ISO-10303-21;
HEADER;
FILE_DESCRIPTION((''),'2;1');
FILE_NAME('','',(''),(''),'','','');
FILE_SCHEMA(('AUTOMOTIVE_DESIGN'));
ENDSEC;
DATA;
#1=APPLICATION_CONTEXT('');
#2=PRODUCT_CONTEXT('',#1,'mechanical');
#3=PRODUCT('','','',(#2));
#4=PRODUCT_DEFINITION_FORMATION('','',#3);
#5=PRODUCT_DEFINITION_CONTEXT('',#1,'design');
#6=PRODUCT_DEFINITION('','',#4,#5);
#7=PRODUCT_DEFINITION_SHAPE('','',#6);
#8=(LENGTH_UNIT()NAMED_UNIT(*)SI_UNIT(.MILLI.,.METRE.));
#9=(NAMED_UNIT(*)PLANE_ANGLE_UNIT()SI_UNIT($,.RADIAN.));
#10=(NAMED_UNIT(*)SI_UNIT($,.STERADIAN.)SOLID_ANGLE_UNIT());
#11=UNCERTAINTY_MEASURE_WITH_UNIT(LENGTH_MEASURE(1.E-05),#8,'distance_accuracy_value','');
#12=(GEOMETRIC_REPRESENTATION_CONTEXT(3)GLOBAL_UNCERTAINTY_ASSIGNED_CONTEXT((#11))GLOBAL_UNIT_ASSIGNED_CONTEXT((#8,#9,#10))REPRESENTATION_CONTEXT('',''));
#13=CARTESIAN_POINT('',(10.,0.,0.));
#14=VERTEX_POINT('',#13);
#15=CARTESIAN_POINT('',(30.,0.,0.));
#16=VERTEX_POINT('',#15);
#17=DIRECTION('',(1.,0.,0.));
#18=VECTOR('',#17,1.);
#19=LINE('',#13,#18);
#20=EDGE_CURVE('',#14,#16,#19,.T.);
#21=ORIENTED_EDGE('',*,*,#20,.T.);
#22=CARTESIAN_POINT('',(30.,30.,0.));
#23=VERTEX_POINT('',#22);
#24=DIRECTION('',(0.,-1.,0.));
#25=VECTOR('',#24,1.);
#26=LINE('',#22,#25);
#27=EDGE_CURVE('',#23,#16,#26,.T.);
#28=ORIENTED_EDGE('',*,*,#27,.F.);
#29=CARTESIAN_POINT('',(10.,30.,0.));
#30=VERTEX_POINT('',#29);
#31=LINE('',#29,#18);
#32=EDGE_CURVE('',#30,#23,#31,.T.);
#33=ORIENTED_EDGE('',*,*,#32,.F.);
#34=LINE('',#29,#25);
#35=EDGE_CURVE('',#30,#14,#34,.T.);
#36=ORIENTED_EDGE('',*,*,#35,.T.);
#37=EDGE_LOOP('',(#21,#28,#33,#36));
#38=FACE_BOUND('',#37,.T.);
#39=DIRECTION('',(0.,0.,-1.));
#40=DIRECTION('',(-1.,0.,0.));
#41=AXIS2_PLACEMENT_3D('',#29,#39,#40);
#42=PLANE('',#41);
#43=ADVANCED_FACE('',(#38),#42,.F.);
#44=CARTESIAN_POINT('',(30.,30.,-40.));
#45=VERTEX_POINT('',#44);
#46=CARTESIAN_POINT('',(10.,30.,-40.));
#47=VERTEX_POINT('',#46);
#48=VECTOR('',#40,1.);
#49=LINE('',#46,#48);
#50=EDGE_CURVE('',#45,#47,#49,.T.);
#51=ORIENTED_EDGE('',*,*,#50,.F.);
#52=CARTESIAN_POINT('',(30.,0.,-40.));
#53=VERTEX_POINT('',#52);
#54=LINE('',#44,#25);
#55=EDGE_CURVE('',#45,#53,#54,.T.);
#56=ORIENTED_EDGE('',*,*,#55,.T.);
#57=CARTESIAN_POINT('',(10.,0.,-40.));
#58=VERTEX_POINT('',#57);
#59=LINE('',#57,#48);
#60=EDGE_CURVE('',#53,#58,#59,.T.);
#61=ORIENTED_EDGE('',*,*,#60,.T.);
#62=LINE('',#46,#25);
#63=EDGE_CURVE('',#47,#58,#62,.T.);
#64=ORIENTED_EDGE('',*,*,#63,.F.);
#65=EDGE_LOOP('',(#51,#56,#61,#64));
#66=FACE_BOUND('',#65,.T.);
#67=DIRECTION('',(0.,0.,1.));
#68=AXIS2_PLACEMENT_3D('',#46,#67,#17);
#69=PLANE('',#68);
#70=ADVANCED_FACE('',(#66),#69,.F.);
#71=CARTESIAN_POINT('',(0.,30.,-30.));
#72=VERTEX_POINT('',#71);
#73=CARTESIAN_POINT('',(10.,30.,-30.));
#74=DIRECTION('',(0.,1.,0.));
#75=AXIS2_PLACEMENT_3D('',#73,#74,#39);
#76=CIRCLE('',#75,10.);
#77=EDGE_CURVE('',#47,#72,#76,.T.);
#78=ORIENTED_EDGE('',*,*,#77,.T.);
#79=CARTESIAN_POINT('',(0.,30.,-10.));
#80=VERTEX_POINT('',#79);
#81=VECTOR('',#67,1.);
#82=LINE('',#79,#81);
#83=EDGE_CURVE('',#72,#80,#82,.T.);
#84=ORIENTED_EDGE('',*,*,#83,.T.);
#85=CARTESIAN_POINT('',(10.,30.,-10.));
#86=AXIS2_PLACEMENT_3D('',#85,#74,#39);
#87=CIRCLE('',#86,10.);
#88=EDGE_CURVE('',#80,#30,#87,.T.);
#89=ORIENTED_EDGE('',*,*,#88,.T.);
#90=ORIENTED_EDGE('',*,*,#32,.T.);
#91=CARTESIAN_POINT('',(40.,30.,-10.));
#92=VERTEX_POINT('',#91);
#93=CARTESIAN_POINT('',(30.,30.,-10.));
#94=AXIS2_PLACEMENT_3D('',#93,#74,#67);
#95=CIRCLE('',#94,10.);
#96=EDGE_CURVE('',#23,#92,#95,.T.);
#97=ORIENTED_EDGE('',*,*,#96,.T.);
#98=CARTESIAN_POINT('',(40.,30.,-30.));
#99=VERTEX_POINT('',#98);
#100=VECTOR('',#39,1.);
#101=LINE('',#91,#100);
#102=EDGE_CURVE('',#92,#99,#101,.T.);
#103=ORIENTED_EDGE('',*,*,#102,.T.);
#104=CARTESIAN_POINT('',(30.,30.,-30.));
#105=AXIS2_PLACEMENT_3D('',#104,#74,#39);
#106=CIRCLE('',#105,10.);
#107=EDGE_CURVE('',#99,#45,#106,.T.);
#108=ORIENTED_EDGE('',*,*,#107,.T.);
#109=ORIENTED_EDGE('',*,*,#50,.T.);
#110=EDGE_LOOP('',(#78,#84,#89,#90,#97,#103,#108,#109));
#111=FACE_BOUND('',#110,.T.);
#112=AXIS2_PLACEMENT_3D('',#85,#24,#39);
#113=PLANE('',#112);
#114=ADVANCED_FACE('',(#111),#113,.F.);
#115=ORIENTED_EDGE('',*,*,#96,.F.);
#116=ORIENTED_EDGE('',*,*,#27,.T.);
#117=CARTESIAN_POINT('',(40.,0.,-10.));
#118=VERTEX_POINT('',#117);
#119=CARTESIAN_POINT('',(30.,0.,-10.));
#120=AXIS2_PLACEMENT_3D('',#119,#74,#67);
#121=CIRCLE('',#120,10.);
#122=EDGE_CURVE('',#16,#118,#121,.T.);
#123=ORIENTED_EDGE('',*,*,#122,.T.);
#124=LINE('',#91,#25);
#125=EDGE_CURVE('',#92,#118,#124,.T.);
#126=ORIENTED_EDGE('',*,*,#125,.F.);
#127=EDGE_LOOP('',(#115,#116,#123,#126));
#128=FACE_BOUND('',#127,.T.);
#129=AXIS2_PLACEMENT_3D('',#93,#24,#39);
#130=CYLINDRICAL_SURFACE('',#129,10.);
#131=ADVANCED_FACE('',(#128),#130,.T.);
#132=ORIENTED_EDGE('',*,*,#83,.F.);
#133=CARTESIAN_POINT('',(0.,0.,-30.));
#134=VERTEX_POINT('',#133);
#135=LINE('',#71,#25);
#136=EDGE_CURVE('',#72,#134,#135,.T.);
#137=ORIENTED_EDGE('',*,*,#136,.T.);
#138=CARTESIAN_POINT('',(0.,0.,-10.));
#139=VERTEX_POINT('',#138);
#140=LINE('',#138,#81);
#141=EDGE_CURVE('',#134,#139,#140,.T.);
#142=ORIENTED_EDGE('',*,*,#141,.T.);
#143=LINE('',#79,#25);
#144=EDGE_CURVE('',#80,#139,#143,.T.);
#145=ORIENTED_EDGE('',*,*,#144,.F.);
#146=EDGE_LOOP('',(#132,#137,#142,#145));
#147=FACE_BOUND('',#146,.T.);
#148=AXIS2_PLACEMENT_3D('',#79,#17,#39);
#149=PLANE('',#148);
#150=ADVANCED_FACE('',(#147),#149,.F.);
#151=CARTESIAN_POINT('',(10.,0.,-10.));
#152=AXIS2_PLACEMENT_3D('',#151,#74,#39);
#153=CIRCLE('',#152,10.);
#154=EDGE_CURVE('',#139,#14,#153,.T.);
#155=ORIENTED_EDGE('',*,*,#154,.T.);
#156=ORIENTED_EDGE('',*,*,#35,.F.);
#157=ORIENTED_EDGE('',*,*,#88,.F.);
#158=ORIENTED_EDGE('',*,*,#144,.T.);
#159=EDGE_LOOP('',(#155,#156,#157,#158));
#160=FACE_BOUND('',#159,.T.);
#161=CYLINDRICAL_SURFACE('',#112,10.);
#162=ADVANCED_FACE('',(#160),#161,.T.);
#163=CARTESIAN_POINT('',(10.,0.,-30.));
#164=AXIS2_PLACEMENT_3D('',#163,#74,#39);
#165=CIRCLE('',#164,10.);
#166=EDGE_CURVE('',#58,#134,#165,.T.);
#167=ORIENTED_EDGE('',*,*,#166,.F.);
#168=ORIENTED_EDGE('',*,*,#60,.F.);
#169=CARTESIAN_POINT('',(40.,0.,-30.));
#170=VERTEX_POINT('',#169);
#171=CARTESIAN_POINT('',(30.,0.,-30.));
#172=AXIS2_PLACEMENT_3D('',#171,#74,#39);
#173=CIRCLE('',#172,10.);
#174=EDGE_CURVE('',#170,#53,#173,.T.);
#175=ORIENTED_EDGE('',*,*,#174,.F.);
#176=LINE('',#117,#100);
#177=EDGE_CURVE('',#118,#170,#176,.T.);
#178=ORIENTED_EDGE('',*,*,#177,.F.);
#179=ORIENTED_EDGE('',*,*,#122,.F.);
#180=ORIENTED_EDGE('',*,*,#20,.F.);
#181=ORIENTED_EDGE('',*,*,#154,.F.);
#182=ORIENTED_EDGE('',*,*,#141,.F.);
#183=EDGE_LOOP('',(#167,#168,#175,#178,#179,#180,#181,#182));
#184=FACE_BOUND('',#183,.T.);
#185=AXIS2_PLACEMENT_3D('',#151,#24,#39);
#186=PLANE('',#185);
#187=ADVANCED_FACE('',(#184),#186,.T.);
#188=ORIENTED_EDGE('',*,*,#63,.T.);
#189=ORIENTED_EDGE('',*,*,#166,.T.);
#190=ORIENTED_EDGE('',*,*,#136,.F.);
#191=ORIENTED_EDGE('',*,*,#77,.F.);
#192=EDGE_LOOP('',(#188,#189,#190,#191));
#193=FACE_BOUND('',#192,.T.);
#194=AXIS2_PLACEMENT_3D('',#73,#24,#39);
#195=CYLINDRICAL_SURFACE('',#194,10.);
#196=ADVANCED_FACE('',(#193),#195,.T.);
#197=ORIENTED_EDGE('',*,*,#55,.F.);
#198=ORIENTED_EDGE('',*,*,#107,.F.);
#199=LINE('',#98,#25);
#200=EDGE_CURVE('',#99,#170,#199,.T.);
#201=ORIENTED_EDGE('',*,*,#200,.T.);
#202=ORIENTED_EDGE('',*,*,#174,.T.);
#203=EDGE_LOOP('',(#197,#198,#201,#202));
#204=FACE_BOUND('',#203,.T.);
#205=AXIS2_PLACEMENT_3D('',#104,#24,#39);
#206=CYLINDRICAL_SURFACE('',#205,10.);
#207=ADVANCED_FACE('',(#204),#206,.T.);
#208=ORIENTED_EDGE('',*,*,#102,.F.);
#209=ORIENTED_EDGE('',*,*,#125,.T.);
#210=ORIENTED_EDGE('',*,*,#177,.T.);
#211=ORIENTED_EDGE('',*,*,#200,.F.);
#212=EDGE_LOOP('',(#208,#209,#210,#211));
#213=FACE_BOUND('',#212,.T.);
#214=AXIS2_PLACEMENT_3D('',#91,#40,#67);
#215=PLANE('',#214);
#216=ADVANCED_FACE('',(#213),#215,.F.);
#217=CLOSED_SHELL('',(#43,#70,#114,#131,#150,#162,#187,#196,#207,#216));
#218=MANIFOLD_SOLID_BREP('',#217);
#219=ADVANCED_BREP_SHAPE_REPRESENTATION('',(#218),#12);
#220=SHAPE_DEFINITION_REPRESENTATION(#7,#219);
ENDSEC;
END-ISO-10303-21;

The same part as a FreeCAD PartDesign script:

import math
import FreeCAD as App
import Part
import Sketcher

doc = App.newDocument("Part")
body = doc.addObject("PartDesign::Body", "Body")

# Sketch on XZ plane
sketch1 = body.newObject("Sketcher::SketchObject", "Sketch")
sketch1.AttachmentSupport = (doc.getObject("XZ_Plane"), [""])
sketch1.MapMode = "FlatFace"
sketch1.addGeometry([
    Part.LineSegment(App.Vector(10, 0, 0), App.Vector(30, 0, 0)),  # 0
    Part.ArcOfCircle(Part.Circle(App.Vector(30, -10, 0), App.Vector(0, 0, 1), 10), math.radians(0), math.radians(90)),  # 1
    Part.LineSegment(App.Vector(40, -10, 0), App.Vector(40, -30, 0)),  # 2
    Part.ArcOfCircle(Part.Circle(App.Vector(30, -30, 0), App.Vector(0, 0, 1), 10), math.radians(-90), math.radians(0)),  # 3
    Part.LineSegment(App.Vector(30, -40, 0), App.Vector(10, -40, 0)),  # 4
    Part.ArcOfCircle(Part.Circle(App.Vector(10, -30, 0), App.Vector(0, 0, 1), 10), math.radians(180), math.radians(270)),  # 5
    Part.LineSegment(App.Vector(0, -30, 0), App.Vector(0, -10, 0)),  # 6
    Part.ArcOfCircle(Part.Circle(App.Vector(10, -10, 0), App.Vector(0, 0, 1), 10), math.radians(90), math.radians(180)),  # 7
], False)
sketch1.addConstraint([
    Sketcher.Constraint("Tangent", 0, 2, 1, 2),
    Sketcher.Constraint("Tangent", 1, 1, 2, 1),
    Sketcher.Constraint("Tangent", 2, 2, 3, 2),
    Sketcher.Constraint("Tangent", 3, 1, 4, 1),
    Sketcher.Constraint("Tangent", 4, 2, 5, 2),
    Sketcher.Constraint("Tangent", 5, 1, 6, 1),
    Sketcher.Constraint("Tangent", 6, 2, 7, 2),
    Sketcher.Constraint("Tangent", 7, 1, 0, 1),
    Sketcher.Constraint("Horizontal", 0),
    Sketcher.Constraint("Vertical", 2),
    Sketcher.Constraint("Horizontal", 4),
    Sketcher.Constraint("Vertical", 6),
    Sketcher.Constraint("Equal", 1, 3),
    Sketcher.Constraint("Equal", 3, 5),
    Sketcher.Constraint("Equal", 5, 7),
    Sketcher.Constraint("PointOnObject", 0, 2, -1),
    Sketcher.Constraint("PointOnObject", 5, 1, -2),
    Sketcher.Constraint("Equal", 4, 2),
    Sketcher.Constraint("Radius", 1, 10.0),
    Sketcher.Constraint("DistanceX", 0, 1, 0, 2, 20.0),
])
pad1 = body.newObject("PartDesign::Pad", "Pad")
pad1.Profile = sketch1
pad1.Length = 30
pad1.Reversed = True

doc.recompute()
